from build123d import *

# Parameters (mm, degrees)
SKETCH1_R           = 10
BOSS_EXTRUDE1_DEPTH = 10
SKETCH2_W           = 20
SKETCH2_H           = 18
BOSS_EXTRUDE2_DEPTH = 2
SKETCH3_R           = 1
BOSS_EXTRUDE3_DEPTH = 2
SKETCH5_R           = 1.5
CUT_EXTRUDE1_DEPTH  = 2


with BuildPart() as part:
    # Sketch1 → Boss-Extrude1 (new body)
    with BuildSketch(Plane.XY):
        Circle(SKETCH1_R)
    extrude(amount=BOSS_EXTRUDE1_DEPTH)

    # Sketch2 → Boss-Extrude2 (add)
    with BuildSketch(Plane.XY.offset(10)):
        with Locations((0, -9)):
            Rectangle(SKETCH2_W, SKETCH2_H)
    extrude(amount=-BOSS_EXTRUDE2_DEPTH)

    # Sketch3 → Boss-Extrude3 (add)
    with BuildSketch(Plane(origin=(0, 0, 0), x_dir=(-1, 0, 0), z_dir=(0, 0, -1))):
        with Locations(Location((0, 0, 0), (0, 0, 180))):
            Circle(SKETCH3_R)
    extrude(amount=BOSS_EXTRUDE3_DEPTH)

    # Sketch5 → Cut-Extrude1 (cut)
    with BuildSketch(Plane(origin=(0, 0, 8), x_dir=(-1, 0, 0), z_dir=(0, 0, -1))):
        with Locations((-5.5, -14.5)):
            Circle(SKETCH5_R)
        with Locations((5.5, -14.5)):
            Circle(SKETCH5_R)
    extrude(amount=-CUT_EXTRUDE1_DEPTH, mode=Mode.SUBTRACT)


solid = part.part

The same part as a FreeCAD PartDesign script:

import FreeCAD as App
import Part
import Sketcher

V = App.Vector
Q = App.Units.Quantity


def add_polygon(sketch, points):
    """Adds a closed chain of lines whose ends are joined by coincident constraints."""
    first, n = sketch.GeometryCount, len(points)
    for a, b in zip(points, points[1:] + points[:1]):
        sketch.addGeometry(Part.LineSegment(App.Vector(*a, 0), App.Vector(*b, 0)), False)
    for i in range(n):
        sketch.addConstraint(Sketcher.Constraint("Coincident", first + i, 2, first + (i + 1) % n, 1))

doc = App.newDocument("Part")
body = doc.addObject("PartDesign::Body", "Body")

# Sketch on XY plane
sketch1 = body.newObject("Sketcher::SketchObject", "Sketch")
sketch1.AttachmentSupport = (doc.getObject("XY_Plane"), [""])
sketch1.MapMode = "FlatFace"
sketch1.addGeometry(Part.Circle(V(0, 0, 0), V(0, 0, 1), 10), False)
sketch1.addConstraint([
    Sketcher.Constraint("Coincident", 0, 3, -1, 1),
    Sketcher.Constraint("Diameter", 0, Q("20 mm")),
])
pad1 = body.newObject("PartDesign::Pad", "Pad")
pad1.Profile = sketch1
pad1.Length = 10

# Sketch on XY plane
sketch2 = body.newObject("Sketcher::SketchObject", "Sketch001")
sketch2.AttachmentSupport = (doc.getObject("XY_Plane"), [""])
sketch2.MapMode = "FlatFace"
sketch2.AttachmentOffset = App.Placement(V(0, 0, 10), App.Rotation())
add_polygon(sketch2, [(-10, 0), (-10, -18), (10, -18), (10, 0)])  # lines 0-3
sketch2.addConstraint([
    Sketcher.Constraint("Vertical", 0),
    Sketcher.Constraint("Horizontal", 1),
    Sketcher.Constraint("Vertical", 2),
    Sketcher.Constraint("Horizontal", 3),
    Sketcher.Constraint("Symmetric", 2, 2, 3, 2, -1, 1),
    Sketcher.Constraint("DistanceX", 1, 1, 1, 2, Q("20 mm")),
    Sketcher.Constraint("DistanceY", 0, 2, 0, 1, Q("18 mm")),
])
pad2 = body.newObject("PartDesign::Pad", "Pad001")
pad2.Profile = sketch2
pad2.Length = 2
pad2.Reversed = True

# Sketch on XY plane
sketch3 = body.newObject("Sketcher::SketchObject", "Sketch002")
sketch3.AttachmentSupport = (doc.getObject("XY_Plane"), [""])
sketch3.MapMode = "FlatFace"
sketch3.addGeometry(Part.Circle(V(0, 0, 0), V(0, 0, 1), 1), False)
sketch3.addConstraint([
    Sketcher.Constraint("Coincident", 0, 3, -1, 1),
    Sketcher.Constraint("Diameter", 0, Q("2 mm")),
])
pad3 = body.newObject("PartDesign::Pad", "Pad002")
pad3.Profile = sketch3
pad3.Length = 2
pad3.Reversed = True

# Sketch on XY plane
sketch4 = body.newObject("Sketcher::SketchObject", "Sketch003")
sketch4.AttachmentSupport = (doc.getObject("XY_Plane"), [""])
sketch4.MapMode = "FlatFace"
sketch4.AttachmentOffset = App.Placement(V(0, 0, 8), App.Rotation())
sketch4.addGeometry([
    Part.Circle(V(5.5, -14.5, 0), V(0, 0, 1), 1.5),
    Part.Circle(V(-5.5, -14.5, 0), V(0, 0, 1), 1.5),
], False)
sketch4.addConstraint([
    Sketcher.Constraint("Equal", 0, 1),
    Sketcher.Constraint("Symmetric", 0, 3, 1, 3, -2),
    Sketcher.Constraint("Diameter", 0, Q("3 mm")),
    Sketcher.Constraint("DistanceX", 1, 3, 0, 3, Q("11 mm")),
    Sketcher.Constraint("DistanceY", 0, 3, -1, 1, Q("14.5 mm")),
])
pocket1 = body.newObject("PartDesign::Pocket", "Pocket")
pocket1.Profile = sketch4
pocket1.Length = 2
pocket1.Reversed = True

doc.recompute()
